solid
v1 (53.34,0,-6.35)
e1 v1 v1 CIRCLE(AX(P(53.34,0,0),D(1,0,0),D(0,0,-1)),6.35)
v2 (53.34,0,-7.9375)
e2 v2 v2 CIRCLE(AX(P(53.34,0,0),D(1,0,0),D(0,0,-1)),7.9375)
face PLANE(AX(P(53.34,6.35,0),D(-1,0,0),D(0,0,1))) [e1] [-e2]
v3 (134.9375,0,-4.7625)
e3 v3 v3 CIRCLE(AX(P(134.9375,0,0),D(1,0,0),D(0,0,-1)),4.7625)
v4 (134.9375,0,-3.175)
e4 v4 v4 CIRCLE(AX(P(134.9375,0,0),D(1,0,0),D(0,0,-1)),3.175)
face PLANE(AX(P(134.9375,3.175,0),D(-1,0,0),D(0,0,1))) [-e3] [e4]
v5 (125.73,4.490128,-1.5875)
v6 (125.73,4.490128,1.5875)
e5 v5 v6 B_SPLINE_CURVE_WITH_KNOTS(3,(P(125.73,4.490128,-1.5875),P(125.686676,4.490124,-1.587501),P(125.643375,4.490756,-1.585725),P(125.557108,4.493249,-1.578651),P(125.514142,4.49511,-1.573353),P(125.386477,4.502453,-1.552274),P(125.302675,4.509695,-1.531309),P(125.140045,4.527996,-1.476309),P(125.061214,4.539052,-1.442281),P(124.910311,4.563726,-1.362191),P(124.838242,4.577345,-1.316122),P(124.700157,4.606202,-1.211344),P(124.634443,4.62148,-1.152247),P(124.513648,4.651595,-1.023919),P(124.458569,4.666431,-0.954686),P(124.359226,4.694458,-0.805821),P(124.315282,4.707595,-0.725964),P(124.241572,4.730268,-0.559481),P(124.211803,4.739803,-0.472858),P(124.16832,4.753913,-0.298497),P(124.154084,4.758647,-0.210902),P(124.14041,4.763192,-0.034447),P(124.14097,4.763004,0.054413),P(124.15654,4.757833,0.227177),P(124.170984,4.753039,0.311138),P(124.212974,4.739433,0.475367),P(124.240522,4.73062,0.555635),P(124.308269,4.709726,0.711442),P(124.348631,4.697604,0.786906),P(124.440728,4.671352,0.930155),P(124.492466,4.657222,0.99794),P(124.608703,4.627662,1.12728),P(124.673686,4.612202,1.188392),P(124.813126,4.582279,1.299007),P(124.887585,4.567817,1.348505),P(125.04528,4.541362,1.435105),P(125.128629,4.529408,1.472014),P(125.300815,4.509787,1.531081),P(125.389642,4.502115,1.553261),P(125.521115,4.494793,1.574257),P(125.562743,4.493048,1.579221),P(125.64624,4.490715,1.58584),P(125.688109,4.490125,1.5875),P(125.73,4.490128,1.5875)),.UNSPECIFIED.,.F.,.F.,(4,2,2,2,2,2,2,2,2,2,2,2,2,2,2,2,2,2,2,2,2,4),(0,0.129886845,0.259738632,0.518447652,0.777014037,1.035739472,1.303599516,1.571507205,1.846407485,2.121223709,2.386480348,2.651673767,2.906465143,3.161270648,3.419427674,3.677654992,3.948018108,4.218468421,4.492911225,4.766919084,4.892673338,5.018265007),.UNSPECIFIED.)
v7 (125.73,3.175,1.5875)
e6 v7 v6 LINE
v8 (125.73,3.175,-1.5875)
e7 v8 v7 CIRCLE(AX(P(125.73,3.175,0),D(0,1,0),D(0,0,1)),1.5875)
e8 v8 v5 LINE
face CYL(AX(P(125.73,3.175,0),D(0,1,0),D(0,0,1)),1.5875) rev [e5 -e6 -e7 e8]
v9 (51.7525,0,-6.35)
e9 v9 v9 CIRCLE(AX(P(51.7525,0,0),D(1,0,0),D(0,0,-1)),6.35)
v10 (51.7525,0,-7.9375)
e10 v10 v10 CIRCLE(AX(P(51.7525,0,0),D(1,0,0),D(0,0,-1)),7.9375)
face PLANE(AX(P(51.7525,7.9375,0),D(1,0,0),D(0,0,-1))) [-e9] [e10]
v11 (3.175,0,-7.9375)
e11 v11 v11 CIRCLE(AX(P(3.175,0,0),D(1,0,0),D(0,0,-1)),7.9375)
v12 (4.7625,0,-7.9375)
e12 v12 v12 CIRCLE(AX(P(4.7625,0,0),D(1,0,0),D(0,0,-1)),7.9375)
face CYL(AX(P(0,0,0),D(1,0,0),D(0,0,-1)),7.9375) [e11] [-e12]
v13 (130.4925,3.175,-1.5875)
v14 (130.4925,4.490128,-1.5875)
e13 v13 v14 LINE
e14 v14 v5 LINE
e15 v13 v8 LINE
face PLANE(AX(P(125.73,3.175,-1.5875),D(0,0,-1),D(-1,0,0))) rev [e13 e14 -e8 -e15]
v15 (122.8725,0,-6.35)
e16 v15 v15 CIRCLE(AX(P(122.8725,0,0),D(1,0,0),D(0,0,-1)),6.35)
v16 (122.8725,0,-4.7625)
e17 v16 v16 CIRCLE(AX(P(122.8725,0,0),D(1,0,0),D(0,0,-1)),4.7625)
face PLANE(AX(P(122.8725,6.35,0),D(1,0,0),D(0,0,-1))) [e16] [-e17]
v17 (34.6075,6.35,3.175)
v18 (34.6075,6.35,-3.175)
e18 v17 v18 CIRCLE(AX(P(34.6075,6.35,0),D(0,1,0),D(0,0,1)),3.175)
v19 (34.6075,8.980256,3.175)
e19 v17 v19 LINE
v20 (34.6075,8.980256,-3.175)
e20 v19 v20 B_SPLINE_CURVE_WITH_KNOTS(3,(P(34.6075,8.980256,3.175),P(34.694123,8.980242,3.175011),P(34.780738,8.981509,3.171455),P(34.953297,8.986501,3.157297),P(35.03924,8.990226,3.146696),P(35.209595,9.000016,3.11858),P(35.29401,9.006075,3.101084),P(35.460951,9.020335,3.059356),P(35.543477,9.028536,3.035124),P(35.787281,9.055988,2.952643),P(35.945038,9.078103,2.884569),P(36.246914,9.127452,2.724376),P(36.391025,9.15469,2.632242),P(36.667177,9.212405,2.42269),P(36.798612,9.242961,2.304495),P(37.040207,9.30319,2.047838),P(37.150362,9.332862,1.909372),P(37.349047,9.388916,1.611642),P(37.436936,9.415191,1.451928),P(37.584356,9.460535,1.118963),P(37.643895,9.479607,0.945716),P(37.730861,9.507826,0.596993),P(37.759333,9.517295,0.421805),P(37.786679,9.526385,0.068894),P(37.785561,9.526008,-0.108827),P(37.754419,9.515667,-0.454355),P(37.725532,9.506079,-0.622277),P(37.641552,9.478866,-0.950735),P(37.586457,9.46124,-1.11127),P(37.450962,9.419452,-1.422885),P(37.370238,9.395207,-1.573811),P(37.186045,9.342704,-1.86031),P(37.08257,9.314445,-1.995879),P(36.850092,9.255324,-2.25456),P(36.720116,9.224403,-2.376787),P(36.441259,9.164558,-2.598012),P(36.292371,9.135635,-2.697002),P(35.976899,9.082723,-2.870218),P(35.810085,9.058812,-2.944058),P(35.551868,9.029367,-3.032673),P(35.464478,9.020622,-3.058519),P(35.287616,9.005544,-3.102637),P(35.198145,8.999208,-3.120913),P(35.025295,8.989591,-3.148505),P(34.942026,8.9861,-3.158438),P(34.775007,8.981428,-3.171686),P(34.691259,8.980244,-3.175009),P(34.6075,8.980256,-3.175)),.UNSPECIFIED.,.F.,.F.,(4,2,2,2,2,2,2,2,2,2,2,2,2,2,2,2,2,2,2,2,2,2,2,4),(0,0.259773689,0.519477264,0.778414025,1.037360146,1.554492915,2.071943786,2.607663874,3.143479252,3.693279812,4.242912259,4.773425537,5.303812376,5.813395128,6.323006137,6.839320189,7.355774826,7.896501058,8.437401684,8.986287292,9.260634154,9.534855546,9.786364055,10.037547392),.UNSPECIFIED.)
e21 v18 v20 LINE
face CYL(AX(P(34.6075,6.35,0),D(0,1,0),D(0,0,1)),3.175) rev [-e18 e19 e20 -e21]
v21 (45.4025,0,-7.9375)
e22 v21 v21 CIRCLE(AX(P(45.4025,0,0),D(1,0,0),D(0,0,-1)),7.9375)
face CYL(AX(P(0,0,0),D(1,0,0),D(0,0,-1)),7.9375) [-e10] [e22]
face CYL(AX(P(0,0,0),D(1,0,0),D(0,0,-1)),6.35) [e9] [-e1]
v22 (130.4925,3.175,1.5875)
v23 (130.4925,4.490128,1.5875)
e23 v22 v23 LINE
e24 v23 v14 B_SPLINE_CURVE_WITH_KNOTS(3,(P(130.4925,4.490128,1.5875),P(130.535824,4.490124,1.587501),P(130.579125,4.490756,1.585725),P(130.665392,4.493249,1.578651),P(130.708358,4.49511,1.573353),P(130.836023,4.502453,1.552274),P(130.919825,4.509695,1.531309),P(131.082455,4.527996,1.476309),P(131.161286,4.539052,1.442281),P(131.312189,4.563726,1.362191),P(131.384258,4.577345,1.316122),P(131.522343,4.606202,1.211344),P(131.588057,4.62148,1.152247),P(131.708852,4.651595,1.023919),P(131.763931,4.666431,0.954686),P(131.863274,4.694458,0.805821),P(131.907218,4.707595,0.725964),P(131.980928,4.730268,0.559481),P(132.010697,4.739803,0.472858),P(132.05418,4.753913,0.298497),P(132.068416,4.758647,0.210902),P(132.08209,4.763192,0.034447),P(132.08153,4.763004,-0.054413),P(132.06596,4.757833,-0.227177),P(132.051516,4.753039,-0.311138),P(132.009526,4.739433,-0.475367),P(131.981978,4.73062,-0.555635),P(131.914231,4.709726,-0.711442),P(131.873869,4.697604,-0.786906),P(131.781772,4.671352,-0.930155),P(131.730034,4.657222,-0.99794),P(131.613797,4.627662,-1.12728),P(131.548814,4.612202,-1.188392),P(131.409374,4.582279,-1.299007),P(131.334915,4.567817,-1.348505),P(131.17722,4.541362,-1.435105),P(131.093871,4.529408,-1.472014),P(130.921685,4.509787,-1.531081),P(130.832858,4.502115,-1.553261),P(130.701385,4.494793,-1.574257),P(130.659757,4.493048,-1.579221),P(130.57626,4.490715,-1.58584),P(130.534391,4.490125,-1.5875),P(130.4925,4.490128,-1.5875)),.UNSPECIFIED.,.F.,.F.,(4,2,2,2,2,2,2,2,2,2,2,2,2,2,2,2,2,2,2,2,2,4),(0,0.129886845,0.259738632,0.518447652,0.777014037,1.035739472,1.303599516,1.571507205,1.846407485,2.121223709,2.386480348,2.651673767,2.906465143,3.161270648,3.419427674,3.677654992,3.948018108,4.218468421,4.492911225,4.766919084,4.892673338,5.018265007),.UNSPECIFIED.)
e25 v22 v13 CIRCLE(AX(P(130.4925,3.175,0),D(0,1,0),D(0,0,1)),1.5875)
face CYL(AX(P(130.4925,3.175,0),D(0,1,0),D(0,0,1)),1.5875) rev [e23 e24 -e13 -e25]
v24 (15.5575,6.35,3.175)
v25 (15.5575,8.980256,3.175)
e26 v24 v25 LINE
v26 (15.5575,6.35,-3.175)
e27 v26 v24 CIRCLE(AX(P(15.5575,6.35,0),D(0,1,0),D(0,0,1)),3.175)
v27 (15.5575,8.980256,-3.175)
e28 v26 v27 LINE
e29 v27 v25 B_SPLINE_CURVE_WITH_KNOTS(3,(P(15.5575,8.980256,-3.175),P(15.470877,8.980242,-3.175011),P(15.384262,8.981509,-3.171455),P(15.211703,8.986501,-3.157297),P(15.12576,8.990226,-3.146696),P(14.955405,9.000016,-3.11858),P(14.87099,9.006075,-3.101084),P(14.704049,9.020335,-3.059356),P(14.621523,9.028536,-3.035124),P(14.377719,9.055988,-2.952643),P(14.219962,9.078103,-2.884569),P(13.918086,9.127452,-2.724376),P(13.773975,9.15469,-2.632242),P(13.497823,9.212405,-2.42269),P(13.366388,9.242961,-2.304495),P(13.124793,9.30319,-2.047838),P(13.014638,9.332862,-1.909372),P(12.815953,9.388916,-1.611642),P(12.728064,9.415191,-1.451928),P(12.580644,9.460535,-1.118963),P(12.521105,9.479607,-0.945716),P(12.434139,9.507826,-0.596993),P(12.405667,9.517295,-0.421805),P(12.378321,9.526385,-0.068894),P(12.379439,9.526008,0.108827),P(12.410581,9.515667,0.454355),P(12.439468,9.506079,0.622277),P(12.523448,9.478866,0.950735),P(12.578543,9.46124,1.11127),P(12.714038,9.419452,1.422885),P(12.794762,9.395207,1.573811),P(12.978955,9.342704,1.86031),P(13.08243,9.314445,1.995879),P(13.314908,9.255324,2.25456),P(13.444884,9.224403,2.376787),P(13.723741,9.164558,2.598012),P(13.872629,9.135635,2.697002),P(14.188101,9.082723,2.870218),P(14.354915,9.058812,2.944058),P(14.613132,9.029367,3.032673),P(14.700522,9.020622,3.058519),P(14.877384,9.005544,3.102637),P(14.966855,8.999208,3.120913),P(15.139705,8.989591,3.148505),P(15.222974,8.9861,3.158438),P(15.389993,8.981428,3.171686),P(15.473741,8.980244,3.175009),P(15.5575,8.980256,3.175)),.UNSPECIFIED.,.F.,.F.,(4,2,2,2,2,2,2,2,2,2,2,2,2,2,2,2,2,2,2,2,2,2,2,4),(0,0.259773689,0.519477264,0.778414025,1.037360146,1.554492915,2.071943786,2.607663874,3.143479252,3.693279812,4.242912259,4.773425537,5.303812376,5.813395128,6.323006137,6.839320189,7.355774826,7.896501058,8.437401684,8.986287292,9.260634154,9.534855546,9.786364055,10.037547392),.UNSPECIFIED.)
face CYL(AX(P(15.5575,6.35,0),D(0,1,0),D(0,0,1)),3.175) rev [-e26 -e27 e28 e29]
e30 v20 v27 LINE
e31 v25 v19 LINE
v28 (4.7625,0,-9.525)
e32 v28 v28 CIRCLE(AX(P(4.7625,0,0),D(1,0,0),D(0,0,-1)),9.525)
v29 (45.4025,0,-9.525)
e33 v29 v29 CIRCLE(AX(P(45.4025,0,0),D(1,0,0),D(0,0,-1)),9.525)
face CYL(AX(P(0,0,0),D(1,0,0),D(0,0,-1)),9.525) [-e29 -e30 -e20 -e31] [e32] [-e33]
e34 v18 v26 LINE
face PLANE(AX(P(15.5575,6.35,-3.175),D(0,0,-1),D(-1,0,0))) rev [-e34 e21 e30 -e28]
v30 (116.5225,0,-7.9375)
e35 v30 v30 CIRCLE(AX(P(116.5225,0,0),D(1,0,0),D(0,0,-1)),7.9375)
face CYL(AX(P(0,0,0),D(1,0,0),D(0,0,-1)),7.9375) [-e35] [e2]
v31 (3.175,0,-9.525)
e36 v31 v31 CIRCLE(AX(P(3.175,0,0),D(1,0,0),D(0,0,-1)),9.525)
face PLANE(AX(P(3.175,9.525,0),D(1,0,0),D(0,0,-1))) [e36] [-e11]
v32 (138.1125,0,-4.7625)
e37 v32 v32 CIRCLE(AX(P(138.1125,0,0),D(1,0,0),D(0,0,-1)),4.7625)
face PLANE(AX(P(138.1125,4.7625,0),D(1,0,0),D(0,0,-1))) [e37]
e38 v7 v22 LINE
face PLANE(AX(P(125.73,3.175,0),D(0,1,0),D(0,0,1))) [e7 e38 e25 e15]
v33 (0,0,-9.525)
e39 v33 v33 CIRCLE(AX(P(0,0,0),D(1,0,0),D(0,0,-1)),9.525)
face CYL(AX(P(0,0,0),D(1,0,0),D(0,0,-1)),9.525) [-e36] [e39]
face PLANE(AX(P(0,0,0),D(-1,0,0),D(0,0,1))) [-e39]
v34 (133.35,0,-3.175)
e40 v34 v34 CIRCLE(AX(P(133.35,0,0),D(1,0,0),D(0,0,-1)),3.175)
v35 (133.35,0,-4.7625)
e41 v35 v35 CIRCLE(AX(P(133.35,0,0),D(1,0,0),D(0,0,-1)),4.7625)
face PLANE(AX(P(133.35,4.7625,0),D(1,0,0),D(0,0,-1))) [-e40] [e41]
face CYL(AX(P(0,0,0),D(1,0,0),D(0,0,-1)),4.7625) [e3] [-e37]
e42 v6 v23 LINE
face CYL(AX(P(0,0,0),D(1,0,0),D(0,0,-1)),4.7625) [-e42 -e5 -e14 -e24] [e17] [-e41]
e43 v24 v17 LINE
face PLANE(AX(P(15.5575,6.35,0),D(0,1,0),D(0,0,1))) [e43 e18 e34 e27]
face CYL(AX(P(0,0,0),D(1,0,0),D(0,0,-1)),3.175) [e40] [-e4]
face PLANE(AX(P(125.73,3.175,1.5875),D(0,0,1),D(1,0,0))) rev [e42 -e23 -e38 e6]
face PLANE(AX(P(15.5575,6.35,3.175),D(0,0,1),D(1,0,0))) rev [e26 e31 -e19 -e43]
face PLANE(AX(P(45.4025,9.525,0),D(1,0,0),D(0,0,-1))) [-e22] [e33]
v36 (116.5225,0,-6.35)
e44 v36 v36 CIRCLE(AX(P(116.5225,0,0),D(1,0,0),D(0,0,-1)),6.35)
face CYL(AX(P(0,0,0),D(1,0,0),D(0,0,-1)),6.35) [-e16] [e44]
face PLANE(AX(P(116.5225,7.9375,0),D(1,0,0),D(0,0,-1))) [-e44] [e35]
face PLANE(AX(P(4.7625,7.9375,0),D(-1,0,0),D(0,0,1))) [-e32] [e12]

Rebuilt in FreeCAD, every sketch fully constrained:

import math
import FreeCAD as App
import Part
import Sketcher
Q = App.Units.Quantity


def add_polygon(sketch, points):
    """Adds a closed chain of lines whose ends are joined by coincident constraints."""
    first, n = sketch.GeometryCount, len(points)
    for a, b in zip(points, points[1:] + points[:1]):
        sketch.addGeometry(Part.LineSegment(App.Vector(*a, 0), App.Vector(*b, 0)), False)
    for i in range(n):
        sketch.addConstraint(Sketcher.Constraint("Coincident", first + i, 2, first + (i + 1) % n, 1))

doc = App.newDocument("Part")
body = doc.addObject("PartDesign::Body", "Body")

# Sketch on XY plane
sketch1 = body.newObject("Sketcher::SketchObject", "Sketch")
sketch1.AttachmentSupport = (doc.getObject("XY_Plane"), [""])
sketch1.MapMode = "FlatFace"
add_polygon(sketch1, [(0, 0), (138.1, 0), (138.1, 4.8), (134.9, 4.8), (134.9, 3.2), (133.3, 3.2), (133.3, 4.8), (122.9, 4.8), (122.9, 6.3), (116.5, 6.3), (116.5, 7.9), (53.3, 7.9), (53.3, 6.3), (51.8, 6.3), (51.8, 7.9), (45.4, 7.9), (45.4, 9.5), (4.8, 9.5), (4.8, 7.9), (3.2, 7.9), (3.2, 9.5), (0, 9.5)])  # lines 0-21
sketch1.addConstraint([
    Sketcher.Constraint("Horizontal", 0),
    Sketcher.Constraint("Vertical", 1),
    Sketcher.Constraint("Horizontal", 2),
    Sketcher.Constraint("Vertical", 3),
    Sketcher.Constraint("Horizontal", 4),
    Sketcher.Constraint("Vertical", 5),
    Sketcher.Constraint("Horizontal", 6),
    Sketcher.Constraint("Vertical", 7),
    Sketcher.Constraint("Horizontal", 8),
    Sketcher.Constraint("Vertical", 9),
    Sketcher.Constraint("Horizontal", 10),
    Sketcher.Constraint("Vertical", 11),
    Sketcher.Constraint("Horizontal", 12),
    Sketcher.Constraint("Vertical", 13),
    Sketcher.Constraint("Horizontal", 14),
    Sketcher.Constraint("Vertical", 15),
    Sketcher.Constraint("Horizontal", 16),
    Sketcher.Constraint("Vertical", 17),
    Sketcher.Constraint("Horizontal", 18),
    Sketcher.Constraint("Vertical", 19),
    Sketcher.Constraint("Horizontal", 20),
    Sketcher.Constraint("Vertical", 21),
    Sketcher.Constraint("Coincident", 21, 2, -1, 1),
    Sketcher.Constraint("Horizontal", 2, 2, 5, 2),
    Sketcher.Constraint("Horizontal", 8, 2, 11, 2),
    Sketcher.Constraint("Horizontal", 10, 2, 13, 2),
    Sketcher.Constraint("Horizontal", 14, 2, 17, 2),
    Sketcher.Constraint("Horizontal", 16, 2, 19, 2),
    Sketcher.Constraint("Equal", 4, 12),
    Sketcher.Constraint("Equal", 8, 14),
    Sketcher.Constraint("Equal", 12, 18),
    Sketcher.Constraint("Equal", 2, 20),
    Sketcher.Constraint("Equal", 18, 3),
    Sketcher.Constraint("Equal", 5, 7),
    Sketcher.Constraint("Equal", 7, 9),
    Sketcher.Constraint("Equal", 13, 15),
    Sketcher.Constraint("DistanceX", 16, 2, 16, 1, Q("1.6 in")),
    Sketcher.Constraint("DistanceX", 8, 2, 8, 1, Q("0.25 in")),
    Sketcher.Constraint("DistanceX", -1, 1, 10, 2, Q("2.1 in")),
    Sketcher.Constraint("DistanceX", 6, 2, 1, 2, Q("0.6 in")),
    Sketcher.Constraint("DistanceX", 12, 2, 7, 2, Q("2.8 in")),
    Sketcher.Constraint("DistanceX", 0, 1, 0, 2, Q("5.4375 in")),
    Sketcher.Constraint("DistanceY", 1, 1, 1, 2, Q("0.1875 in")),
])
revolution = body.newObject("PartDesign::Revolution", "Revolution")
revolution.Profile = sketch1
revolution.ReferenceAxis = (sketch1, ["H_Axis"])
revolution.Angle = 360

# Sketch on XZ plane
sketch2 = body.newObject("Sketcher::SketchObject", "Sketch001")
sketch2.AttachmentSupport = (doc.getObject("XZ_Plane"), [""])
sketch2.MapMode = "FlatFace"
sketch2.AttachmentOffset = App.Placement(App.Vector(0, 0, -0.375 * 25.4), App.Rotation())
sketch2.addGeometry([
    Part.LineSegment(App.Vector(34.6, -3.2, 0), App.Vector(15.6, -3.2, 0)),
    Part.ArcOfCircle(Part.Circle(App.Vector(15.6, 0, 0), App.Vector(0, 0, 1), 3.2), math.radians(90), math.radians(270)),
    Part.LineSegment(App.Vector(15.6, 3.2, 0), App.Vector(34.6, 3.2, 0)),
    Part.ArcOfCircle(Part.Circle(App.Vector(34.6, 0, 0), App.Vector(0, 0, 1), 3.2), math.radians(-90), math.radians(90)),
], False)
sketch2.addConstraint([
    Sketcher.Constraint("Tangent", 0, 2, 1, 2),
    Sketcher.Constraint("Tangent", 1, 1, 2, 1),
    Sketcher.Constraint("Tangent", 2, 2, 3, 2),
    Sketcher.Constraint("Tangent", 3, 1, 0, 1),
    Sketcher.Constraint("Horizontal", 0),
    Sketcher.Constraint("Horizontal", 2),
    Sketcher.Constraint("PointOnObject", 1, 3, -1),
    Sketcher.Constraint("Radius", 1, Q("0.125 in")),
    Sketcher.Constraint("DistanceX", 0, 2, 0, 1, Q("0.75 in")),
    Sketcher.Constraint("DistanceX", -1, 1, 1, 3, Q("0.6125 in")),
])
pocket1 = body.newObject("PartDesign::Pocket", "Pocket")
pocket1.Profile = sketch2
pocket1.Length = Q("0.125 in")
pocket1.Reversed = True

# Sketch on XZ plane
sketch3 = body.newObject("Sketcher::SketchObject", "Sketch002")
sketch3.AttachmentSupport = (doc.getObject("XZ_Plane"), [""])
sketch3.MapMode = "FlatFace"
sketch3.AttachmentOffset = App.Placement(App.Vector(0, 0, -0.1875 * 25.4), App.Rotation())
sketch3.addGeometry([
    Part.LineSegment(App.Vector(130.5, -1.6, 0), App.Vector(125.7, -1.6, 0)),
    Part.ArcOfCircle(Part.Circle(App.Vector(125.7, 0, 0), App.Vector(0, 0, 1), 1.6), math.radians(90), math.radians(270)),
    Part.LineSegment(App.Vector(125.7, 1.6, 0), App.Vector(130.5, 1.6, 0)),
    Part.ArcOfCircle(Part.Circle(App.Vector(130.5, 0, 0), App.Vector(0, 0, 1), 1.6), math.radians(-90), math.radians(90)),
], False)
sketch3.addConstraint([
    Sketcher.Constraint("Tangent", 0, 2, 1, 2),
    Sketcher.Constraint("Tangent", 1, 1, 2, 1),
    Sketcher.Constraint("Tangent", 2, 2, 3, 2),
    Sketcher.Constraint("Tangent", 3, 1, 0, 1),
    Sketcher.Constraint("Horizontal", 0),
    Sketcher.Constraint("Horizontal", 2),
    Sketcher.Constraint("PointOnObject", 1, 3, -1),
    Sketcher.Constraint("Radius", 1, Q("0.0625 in")),
    Sketcher.Constraint("DistanceX", 0, 2, 0, 1, Q("0.1875 in")),
    Sketcher.Constraint("DistanceX", -1, 1, 1, 3, Q("4.95 in")),
])
pocket2 = body.newObject("PartDesign::Pocket", "Pocket001")
pocket2.Profile = sketch3
pocket2.Length = Q("0.0625 in")
pocket2.Reversed = True

doc.recompute()
